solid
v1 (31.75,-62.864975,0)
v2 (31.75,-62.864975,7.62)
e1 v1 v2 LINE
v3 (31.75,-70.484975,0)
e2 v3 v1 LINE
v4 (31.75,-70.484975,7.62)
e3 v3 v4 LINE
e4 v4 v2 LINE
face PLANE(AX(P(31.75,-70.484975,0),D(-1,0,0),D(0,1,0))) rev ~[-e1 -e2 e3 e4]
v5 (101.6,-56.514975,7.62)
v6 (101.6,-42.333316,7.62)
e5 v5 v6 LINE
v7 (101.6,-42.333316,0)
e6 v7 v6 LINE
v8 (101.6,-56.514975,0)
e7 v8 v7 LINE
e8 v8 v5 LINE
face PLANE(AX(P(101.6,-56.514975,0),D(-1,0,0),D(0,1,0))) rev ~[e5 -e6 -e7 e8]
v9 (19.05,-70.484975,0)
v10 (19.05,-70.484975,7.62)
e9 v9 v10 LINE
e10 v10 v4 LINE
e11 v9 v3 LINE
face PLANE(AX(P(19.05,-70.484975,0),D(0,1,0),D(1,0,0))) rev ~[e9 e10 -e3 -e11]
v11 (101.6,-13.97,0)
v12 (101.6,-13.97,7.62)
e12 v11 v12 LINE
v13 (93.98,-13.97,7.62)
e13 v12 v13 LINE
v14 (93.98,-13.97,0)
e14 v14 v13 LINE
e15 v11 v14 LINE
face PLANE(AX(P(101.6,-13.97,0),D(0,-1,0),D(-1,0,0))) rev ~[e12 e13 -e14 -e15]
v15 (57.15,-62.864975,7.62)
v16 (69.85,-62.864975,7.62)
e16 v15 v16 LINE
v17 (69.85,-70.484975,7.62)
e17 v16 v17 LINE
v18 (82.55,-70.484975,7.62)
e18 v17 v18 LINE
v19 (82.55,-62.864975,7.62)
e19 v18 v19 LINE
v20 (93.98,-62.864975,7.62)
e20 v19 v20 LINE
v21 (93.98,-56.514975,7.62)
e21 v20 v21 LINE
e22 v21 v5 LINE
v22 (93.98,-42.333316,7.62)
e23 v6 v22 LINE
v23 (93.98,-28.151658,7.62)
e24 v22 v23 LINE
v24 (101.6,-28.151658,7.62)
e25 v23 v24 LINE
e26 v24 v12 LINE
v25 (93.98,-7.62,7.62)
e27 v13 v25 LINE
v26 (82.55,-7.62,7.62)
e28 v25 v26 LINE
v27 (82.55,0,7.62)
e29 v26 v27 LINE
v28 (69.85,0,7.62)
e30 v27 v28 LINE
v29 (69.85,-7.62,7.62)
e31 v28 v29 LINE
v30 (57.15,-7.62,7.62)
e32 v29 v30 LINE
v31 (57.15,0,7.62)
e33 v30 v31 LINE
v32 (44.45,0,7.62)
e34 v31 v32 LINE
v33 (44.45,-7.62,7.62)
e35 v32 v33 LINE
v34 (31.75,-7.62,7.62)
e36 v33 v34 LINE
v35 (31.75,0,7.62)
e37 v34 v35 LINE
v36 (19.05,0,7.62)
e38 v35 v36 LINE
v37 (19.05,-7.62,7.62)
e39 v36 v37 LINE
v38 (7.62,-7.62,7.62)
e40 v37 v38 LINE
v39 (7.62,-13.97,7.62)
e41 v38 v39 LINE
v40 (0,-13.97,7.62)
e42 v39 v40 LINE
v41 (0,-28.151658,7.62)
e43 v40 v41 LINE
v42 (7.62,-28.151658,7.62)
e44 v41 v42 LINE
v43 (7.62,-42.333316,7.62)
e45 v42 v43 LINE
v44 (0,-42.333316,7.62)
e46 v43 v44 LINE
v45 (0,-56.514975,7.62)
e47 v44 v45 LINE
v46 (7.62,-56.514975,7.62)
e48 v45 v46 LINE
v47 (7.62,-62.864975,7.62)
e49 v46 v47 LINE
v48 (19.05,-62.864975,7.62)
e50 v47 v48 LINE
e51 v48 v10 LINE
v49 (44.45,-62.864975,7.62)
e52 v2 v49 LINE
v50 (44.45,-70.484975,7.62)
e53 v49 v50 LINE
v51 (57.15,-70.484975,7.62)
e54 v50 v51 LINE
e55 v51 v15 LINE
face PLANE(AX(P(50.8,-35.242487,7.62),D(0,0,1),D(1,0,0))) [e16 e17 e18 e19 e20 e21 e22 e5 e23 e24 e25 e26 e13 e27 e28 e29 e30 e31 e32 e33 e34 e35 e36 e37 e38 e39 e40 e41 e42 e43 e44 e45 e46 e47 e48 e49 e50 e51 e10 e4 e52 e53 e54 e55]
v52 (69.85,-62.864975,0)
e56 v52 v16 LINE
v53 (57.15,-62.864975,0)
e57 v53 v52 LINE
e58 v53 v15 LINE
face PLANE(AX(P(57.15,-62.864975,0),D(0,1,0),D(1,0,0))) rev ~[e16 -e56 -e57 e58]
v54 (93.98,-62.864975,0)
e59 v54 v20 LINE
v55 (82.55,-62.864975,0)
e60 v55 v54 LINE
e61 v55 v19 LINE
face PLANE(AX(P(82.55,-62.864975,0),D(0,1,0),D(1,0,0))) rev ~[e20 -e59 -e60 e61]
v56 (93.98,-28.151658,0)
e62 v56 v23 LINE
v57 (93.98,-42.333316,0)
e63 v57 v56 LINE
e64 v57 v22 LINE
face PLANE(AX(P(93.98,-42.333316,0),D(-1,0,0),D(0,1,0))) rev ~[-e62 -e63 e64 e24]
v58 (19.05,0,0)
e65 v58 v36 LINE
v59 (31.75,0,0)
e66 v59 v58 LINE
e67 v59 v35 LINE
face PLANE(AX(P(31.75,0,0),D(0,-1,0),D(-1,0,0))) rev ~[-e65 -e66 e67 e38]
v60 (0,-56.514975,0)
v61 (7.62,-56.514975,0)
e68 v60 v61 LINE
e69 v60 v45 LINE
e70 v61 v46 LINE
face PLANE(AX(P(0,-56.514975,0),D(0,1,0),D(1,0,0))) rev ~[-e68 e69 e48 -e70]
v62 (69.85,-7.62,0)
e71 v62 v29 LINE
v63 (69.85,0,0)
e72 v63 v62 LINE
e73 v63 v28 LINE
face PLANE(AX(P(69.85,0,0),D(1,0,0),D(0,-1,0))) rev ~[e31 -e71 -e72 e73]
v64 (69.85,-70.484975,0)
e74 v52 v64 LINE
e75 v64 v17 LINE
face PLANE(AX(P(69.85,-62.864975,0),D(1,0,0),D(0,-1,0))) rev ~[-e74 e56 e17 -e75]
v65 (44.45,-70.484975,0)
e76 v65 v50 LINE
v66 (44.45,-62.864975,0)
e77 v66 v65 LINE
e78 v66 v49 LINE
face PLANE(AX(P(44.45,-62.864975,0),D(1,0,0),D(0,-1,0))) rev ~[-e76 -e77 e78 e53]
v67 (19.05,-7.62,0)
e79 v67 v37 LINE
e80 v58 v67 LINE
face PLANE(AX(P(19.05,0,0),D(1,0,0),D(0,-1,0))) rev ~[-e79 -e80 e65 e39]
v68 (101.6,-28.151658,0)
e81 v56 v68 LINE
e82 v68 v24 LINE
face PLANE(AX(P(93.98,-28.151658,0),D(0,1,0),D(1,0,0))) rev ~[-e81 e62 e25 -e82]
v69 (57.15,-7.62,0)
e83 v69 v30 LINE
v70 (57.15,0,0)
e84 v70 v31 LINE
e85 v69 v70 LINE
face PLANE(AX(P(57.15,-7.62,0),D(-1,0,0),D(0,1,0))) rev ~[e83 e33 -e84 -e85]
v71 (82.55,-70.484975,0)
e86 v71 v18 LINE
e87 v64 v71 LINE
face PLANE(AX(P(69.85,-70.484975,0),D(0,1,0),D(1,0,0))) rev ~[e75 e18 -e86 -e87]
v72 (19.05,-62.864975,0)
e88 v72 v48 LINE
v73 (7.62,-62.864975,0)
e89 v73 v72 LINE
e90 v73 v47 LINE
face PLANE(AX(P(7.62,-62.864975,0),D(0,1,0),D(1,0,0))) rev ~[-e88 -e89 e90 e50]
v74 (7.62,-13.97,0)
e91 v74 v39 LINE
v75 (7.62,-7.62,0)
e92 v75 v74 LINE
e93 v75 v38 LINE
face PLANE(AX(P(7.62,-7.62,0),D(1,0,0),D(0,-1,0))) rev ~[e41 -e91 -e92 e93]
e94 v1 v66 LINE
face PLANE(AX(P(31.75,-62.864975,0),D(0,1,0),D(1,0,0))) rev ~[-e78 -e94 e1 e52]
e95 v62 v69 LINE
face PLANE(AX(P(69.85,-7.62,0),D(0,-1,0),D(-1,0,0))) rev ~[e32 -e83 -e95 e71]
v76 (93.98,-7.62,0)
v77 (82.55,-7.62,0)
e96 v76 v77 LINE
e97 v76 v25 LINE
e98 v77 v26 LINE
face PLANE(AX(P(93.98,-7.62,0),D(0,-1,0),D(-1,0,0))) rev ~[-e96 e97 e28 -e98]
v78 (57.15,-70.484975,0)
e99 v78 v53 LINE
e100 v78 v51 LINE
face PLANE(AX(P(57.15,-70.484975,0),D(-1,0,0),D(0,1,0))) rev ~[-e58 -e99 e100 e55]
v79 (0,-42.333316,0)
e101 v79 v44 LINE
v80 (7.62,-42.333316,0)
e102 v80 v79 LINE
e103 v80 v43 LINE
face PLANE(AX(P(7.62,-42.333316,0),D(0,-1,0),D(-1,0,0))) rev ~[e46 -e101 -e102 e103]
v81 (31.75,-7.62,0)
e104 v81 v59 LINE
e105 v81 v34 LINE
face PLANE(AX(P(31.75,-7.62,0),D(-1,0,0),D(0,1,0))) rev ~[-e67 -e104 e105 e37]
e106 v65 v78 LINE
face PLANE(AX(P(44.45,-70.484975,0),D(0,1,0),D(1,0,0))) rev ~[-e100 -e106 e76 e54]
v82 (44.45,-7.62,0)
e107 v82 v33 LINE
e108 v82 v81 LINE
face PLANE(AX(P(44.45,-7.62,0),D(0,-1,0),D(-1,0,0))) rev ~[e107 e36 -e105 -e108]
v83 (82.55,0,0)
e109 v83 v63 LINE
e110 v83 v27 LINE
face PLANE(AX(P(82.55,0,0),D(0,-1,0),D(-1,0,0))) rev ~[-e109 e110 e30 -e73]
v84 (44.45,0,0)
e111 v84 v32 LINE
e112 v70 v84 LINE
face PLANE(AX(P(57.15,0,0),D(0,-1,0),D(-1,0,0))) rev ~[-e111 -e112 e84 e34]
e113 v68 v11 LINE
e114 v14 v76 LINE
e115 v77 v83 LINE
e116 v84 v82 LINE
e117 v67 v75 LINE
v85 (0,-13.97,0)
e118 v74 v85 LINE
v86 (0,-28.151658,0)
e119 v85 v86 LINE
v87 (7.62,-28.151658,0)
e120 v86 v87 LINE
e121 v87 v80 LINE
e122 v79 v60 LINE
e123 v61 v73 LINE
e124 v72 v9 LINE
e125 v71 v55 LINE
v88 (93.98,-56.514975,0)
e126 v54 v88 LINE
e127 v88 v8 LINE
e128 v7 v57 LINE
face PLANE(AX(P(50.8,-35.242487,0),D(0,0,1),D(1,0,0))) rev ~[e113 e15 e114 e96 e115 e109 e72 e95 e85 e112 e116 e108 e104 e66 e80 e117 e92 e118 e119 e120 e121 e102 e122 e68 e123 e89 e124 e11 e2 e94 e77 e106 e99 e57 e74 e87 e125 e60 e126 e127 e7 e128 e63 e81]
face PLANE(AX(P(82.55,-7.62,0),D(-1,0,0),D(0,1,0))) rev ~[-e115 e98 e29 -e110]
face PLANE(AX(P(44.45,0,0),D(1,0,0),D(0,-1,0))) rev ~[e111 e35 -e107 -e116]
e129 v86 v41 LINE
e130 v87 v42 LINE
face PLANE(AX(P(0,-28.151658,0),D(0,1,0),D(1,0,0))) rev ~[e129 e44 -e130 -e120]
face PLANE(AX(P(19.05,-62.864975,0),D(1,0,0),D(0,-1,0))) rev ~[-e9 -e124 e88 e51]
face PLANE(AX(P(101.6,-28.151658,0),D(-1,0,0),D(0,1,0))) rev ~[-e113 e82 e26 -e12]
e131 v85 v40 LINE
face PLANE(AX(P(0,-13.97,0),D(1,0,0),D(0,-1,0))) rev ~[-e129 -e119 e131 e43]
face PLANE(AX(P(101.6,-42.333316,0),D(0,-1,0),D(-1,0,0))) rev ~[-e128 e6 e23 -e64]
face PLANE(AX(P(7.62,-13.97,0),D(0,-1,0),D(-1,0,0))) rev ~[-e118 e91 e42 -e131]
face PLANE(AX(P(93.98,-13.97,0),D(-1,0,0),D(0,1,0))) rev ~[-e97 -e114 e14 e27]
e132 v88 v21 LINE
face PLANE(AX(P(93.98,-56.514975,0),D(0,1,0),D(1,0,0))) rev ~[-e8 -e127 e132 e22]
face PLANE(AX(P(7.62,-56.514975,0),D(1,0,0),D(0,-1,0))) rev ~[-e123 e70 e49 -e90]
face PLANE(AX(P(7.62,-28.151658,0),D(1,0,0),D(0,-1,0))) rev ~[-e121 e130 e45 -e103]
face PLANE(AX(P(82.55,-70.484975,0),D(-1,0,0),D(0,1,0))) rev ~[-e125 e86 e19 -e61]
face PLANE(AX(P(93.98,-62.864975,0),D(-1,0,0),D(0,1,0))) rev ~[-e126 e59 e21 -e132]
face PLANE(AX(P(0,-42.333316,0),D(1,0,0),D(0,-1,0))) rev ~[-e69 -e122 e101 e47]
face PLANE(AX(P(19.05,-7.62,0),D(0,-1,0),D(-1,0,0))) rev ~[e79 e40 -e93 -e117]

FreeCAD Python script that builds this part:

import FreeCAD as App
import Part
import Sketcher

V = App.Vector
Q = App.Units.Quantity

doc = App.newDocument("Part")
body = doc.addObject("PartDesign::Body", "Body")

# Sketch on XY plane
sketch1 = doc.addObject("Sketcher::SketchObject", "Sketch")
body.addObject(sketch1)
sketch1.AttachmentSupport = (doc.XY_Plane, [""])
sketch1.MapMode = "FlatFace"
sketch1.addGeometry(Part.LineSegment(V(32, 0, 0), V(19, 0, 0)), False)
sketch1.addGeometry(Part.LineSegment(V(19, 0, 0), V(19, -8, 0)), False)
sketch1.addGeometry(Part.LineSegment(V(19, -8, 0), V(8, -8, 0)), False)
sketch1.addGeometry(Part.LineSegment(V(8, -8, 0), V(8, -14, 0)), False)
sketch1.addGeometry(Part.LineSegment(V(8, -14, 0), V(0, -14, 0)), False)
sketch1.addGeometry(Part.LineSegment(V(0, -14, 0), V(0, -28, 0)), False)
sketch1.addGeometry(Part.LineSegment(V(0, -28, 0), V(8, -28, 0)), False)
sketch1.addGeometry(Part.LineSegment(V(8, -28, 0), V(8, -42, 0)), False)
sketch1.addGeometry(Part.LineSegment(V(8, -42, 0), V(0, -42, 0)), False)
sketch1.addGeometry(Part.LineSegment(V(0, -42, 0), V(0, -57, 0)), False)
sketch1.addGeometry(Part.LineSegment(V(0, -57, 0), V(8, -57, 0)), False)
sketch1.addGeometry(Part.LineSegment(V(8, -57, 0), V(8, -63, 0)), False)
sketch1.addGeometry(Part.LineSegment(V(8, -63, 0), V(19, -63, 0)), False)
sketch1.addGeometry(Part.LineSegment(V(19, -63, 0), V(19, -70, 0)), False)
sketch1.addGeometry(Part.LineSegment(V(19, -70, 0), V(32, -70, 0)), False)
sketch1.addGeometry(Part.LineSegment(V(32, -70, 0), V(32, -63, 0)), False)
sketch1.addGeometry(Part.LineSegment(V(32, -63, 0), V(44, -63, 0)), False)
sketch1.addGeometry(Part.LineSegment(V(44, -63, 0), V(44, -70, 0)), False)
sketch1.addGeometry(Part.LineSegment(V(44, -70, 0), V(57, -70, 0)), False)
sketch1.addGeometry(Part.LineSegment(V(57, -70, 0), V(57, -63, 0)), False)
sketch1.addGeometry(Part.LineSegment(V(57, -63, 0), V(70, -63, 0)), False)
sketch1.addGeometry(Part.LineSegment(V(70, -63, 0), V(70, -70, 0)), False)
sketch1.addGeometry(Part.LineSegment(V(70, -70, 0), V(83, -70, 0)), False)
sketch1.addGeometry(Part.LineSegment(V(83, -70, 0), V(83, -63, 0)), False)
sketch1.addGeometry(Part.LineSegment(V(83, -63, 0), V(94, -63, 0)), False)
sketch1.addGeometry(Part.LineSegment(V(94, -63, 0), V(94, -57, 0)), False)
sketch1.addGeometry(Part.LineSegment(V(94, -57, 0), V(102, -57, 0)), False)
sketch1.addGeometry(Part.LineSegment(V(102, -57, 0), V(102, -42, 0)), False)
sketch1.addGeometry(Part.LineSegment(V(102, -42, 0), V(94, -42, 0)), False)
sketch1.addGeometry(Part.LineSegment(V(94, -42, 0), V(94, -28, 0)), False)
sketch1.addGeometry(Part.LineSegment(V(94, -28, 0), V(102, -28, 0)), False)
sketch1.addGeometry(Part.LineSegment(V(102, -28, 0), V(102, -14, 0)), False)
sketch1.addGeometry(Part.LineSegment(V(102, -14, 0), V(94, -14, 0)), False)
sketch1.addGeometry(Part.LineSegment(V(94, -14, 0), V(94, -8, 0)), False)
sketch1.addGeometry(Part.LineSegment(V(94, -8, 0), V(83, -8, 0)), False)
sketch1.addGeometry(Part.LineSegment(V(83, -8, 0), V(83, 0, 0)), False)
sketch1.addGeometry(Part.LineSegment(V(83, 0, 0), V(70, 0, 0)), False)
sketch1.addGeometry(Part.LineSegment(V(70, 0, 0), V(70, -8, 0)), False)
sketch1.addGeometry(Part.LineSegment(V(70, -8, 0), V(57, -8, 0)), False)
sketch1.addGeometry(Part.LineSegment(V(57, -8, 0), V(57, 0, 0)), False)
sketch1.addGeometry(Part.LineSegment(V(57, 0, 0), V(44, 0, 0)), False)
sketch1.addGeometry(Part.LineSegment(V(44, 0, 0), V(44, -8, 0)), False)
sketch1.addGeometry(Part.LineSegment(V(44, -8, 0), V(32, -8, 0)), False)
sketch1.addGeometry(Part.LineSegment(V(32, -8, 0), V(32, 0, 0)), False)
sketch1.addConstraint(Sketcher.Constraint("Coincident", 0, 2, 1, 1))
sketch1.addConstraint(Sketcher.Constraint("Coincident", 1, 2, 2, 1))
sketch1.addConstraint(Sketcher.Constraint("Coincident", 2, 2, 3, 1))
sketch1.addConstraint(Sketcher.Constraint("Coincident", 3, 2, 4, 1))
sketch1.addConstraint(Sketcher.Constraint("Coincident", 4, 2, 5, 1))
sketch1.addConstraint(Sketcher.Constraint("Coincident", 5, 2, 6, 1))
sketch1.addConstraint(Sketcher.Constraint("Coincident", 6, 2, 7, 1))
sketch1.addConstraint(Sketcher.Constraint("Coincident", 7, 2, 8, 1))
sketch1.addConstraint(Sketcher.Constraint("Coincident", 8, 2, 9, 1))
sketch1.addConstraint(Sketcher.Constraint("Coincident", 9, 2, 10, 1))
sketch1.addConstraint(Sketcher.Constraint("Coincident", 10, 2, 11, 1))
sketch1.addConstraint(Sketcher.Constraint("Coincident", 11, 2, 12, 1))
sketch1.addConstraint(Sketcher.Constraint("Coincident", 12, 2, 13, 1))
sketch1.addConstraint(Sketcher.Constraint("Coincident", 13, 2, 14, 1))
sketch1.addConstraint(Sketcher.Constraint("Coincident", 14, 2, 15, 1))
sketch1.addConstraint(Sketcher.Constraint("Coincident", 15, 2, 16, 1))
sketch1.addConstraint(Sketcher.Constraint("Coincident", 16, 2, 17, 1))
sketch1.addConstraint(Sketcher.Constraint("Coincident", 17, 2, 18, 1))
sketch1.addConstraint(Sketcher.Constraint("Coincident", 18, 2, 19, 1))
sketch1.addConstraint(Sketcher.Constraint("Coincident", 19, 2, 20, 1))
sketch1.addConstraint(Sketcher.Constraint("Coincident", 20, 2, 21, 1))
sketch1.addConstraint(Sketcher.Constraint("Coincident", 21, 2, 22, 1))
sketch1.addConstraint(Sketcher.Constraint("Coincident", 22, 2, 23, 1))
sketch1.addConstraint(Sketcher.Constraint("Coincident", 23, 2, 24, 1))
sketch1.addConstraint(Sketcher.Constraint("Coincident", 24, 2, 25, 1))
sketch1.addConstraint(Sketcher.Constraint("Coincident", 25, 2, 26, 1))
sketch1.addConstraint(Sketcher.Constraint("Coincident", 26, 2, 27, 1))
sketch1.addConstraint(Sketcher.Constraint("Coincident", 27, 2, 28, 1))
sketch1.addConstraint(Sketcher.Constraint("Coincident", 28, 2, 29, 1))
sketch1.addConstraint(Sketcher.Constraint("Coincident", 29, 2, 30, 1))
sketch1.addConstraint(Sketcher.Constraint("Coincident", 30, 2, 31, 1))
sketch1.addConstraint(Sketcher.Constraint("Coincident", 31, 2, 32, 1))
sketch1.addConstraint(Sketcher.Constraint("Coincident", 32, 2, 33, 1))
sketch1.addConstraint(Sketcher.Constraint("Coincident", 33, 2, 34, 1))
sketch1.addConstraint(Sketcher.Constraint("Coincident", 34, 2, 35, 1))
sketch1.addConstraint(Sketcher.Constraint("Coincident", 35, 2, 36, 1))
sketch1.addConstraint(Sketcher.Constraint("Coincident", 36, 2, 37, 1))
sketch1.addConstraint(Sketcher.Constraint("Coincident", 37, 2, 38, 1))
sketch1.addConstraint(Sketcher.Constraint("Coincident", 38, 2, 39, 1))
sketch1.addConstraint(Sketcher.Constraint("Coincident", 39, 2, 40, 1))
sketch1.addConstraint(Sketcher.Constraint("Coincident", 40, 2, 41, 1))
sketch1.addConstraint(Sketcher.Constraint("Coincident", 41, 2, 42, 1))
sketch1.addConstraint(Sketcher.Constraint("Coincident", 42, 2, 43, 1))
sketch1.addConstraint(Sketcher.Constraint("Coincident", 43, 2, 0, 1))
sketch1.addConstraint(Sketcher.Constraint("Horizontal", 0))
sketch1.addConstraint(Sketcher.Constraint("Vertical", 1))
sketch1.addConstraint(Sketcher.Constraint("Horizontal", 2))
sketch1.addConstraint(Sketcher.Constraint("Vertical", 3))
sketch1.addConstraint(Sketcher.Constraint("Horizontal", 4))
sketch1.addConstraint(Sketcher.Constraint("Vertical", 5))
sketch1.addConstraint(Sketcher.Constraint("Horizontal", 6))
sketch1.addConstraint(Sketcher.Constraint("Vertical", 7))
sketch1.addConstraint(Sketcher.Constraint("Horizontal", 8))
sketch1.addConstraint(Sketcher.Constraint("Vertical", 9))
sketch1.addConstraint(Sketcher.Constraint("Horizontal", 10))
sketch1.addConstraint(Sketcher.Constraint("Vertical", 11))
sketch1.addConstraint(Sketcher.Constraint("Horizontal", 12))
sketch1.addConstraint(Sketcher.Constraint("Vertical", 13))
sketch1.addConstraint(Sketcher.Constraint("Horizontal", 14))
sketch1.addConstraint(Sketcher.Constraint("Vertical", 15))
sketch1.addConstraint(Sketcher.Constraint("Horizontal", 16))
sketch1.addConstraint(Sketcher.Constraint("Vertical", 17))
sketch1.addConstraint(Sketcher.Constraint("Horizontal", 18))
sketch1.addConstraint(Sketcher.Constraint("Vertical", 19))
sketch1.addConstraint(Sketcher.Constraint("Horizontal", 20))
sketch1.addConstraint(Sketcher.Constraint("Vertical", 21))
sketch1.addConstraint(Sketcher.Constraint("Horizontal", 22))
sketch1.addConstraint(Sketcher.Constraint("Vertical", 23))
sketch1.addConstraint(Sketcher.Constraint("Horizontal", 24))
sketch1.addConstraint(Sketcher.Constraint("Vertical", 25))
sketch1.addConstraint(Sketcher.Constraint("Horizontal", 26))
sketch1.addConstraint(Sketcher.Constraint("Vertical", 27))
sketch1.addConstraint(Sketcher.Constraint("Horizontal", 28))
sketch1.addConstraint(Sketcher.Constraint("Vertical", 29))
sketch1.addConstraint(Sketcher.Constraint("Horizontal", 30))
sketch1.addConstraint(Sketcher.Constraint("Vertical", 31))
sketch1.addConstraint(Sketcher.Constraint("Horizontal", 32))
sketch1.addConstraint(Sketcher.Constraint("Vertical", 33))
sketch1.addConstraint(Sketcher.Constraint("Horizontal", 34))
sketch1.addConstraint(Sketcher.Constraint("Vertical", 35))
sketch1.addConstraint(Sketcher.Constraint("Horizontal", 36))
sketch1.addConstraint(Sketcher.Constraint("Vertical", 37))
sketch1.addConstraint(Sketcher.Constraint("Horizontal", 38))
sketch1.addConstraint(Sketcher.Constraint("Vertical", 39))
sketch1.addConstraint(Sketcher.Constraint("Horizontal", 40))
sketch1.addConstraint(Sketcher.Constraint("Vertical", 41))
sketch1.addConstraint(Sketcher.Constraint("Horizontal", 42))
sketch1.addConstraint(Sketcher.Constraint("Vertical", 43))
sketch1.addConstraint(Sketcher.Constraint("PointOnObject", 0, 2, -1))
sketch1.addConstraint(Sketcher.Constraint("PointOnObject", 4, 2, -2))
sketch1.addConstraint(Sketcher.Constraint("PointOnObject", 8, 2, -2))
sketch1.addConstraint(Sketcher.Constraint("PointOnObject", 35, 2, -1))
sketch1.addConstraint(Sketcher.Constraint("PointOnObject", 39, 2, -1))
sketch1.addConstraint(Sketcher.Constraint("Horizontal", 12, 2, 15, 2))
sketch1.addConstraint(Sketcher.Constraint("Horizontal", 14, 2, 17, 2))
sketch1.addConstraint(Sketcher.Constraint("Horizontal", 16, 2, 19, 2))
sketch1.addConstraint(Sketcher.Constraint("Horizontal", 18, 2, 21, 2))
sketch1.addConstraint(Sketcher.Constraint("Horizontal", 20, 2, 23, 2))
sketch1.addConstraint(Sketcher.Constraint("Horizontal", 10, 2, 25, 2))
sketch1.addConstraint(Sketcher.Constraint("Horizontal", 8, 2, 27, 2))
sketch1.addConstraint(Sketcher.Constraint("Horizontal", 6, 2, 29, 2))
sketch1.addConstraint(Sketcher.Constraint("Horizontal", 4, 2, 31, 2))
sketch1.addConstraint(Sketcher.Constraint("Horizontal", 2, 2, 33, 2))
sketch1.addConstraint(Sketcher.Constraint("Horizontal", 34, 2, 37, 2))
sketch1.addConstraint(Sketcher.Constraint("Horizontal", 38, 2, 41, 2))
sketch1.addConstraint(Sketcher.Constraint("Vertical", 3, 2, 6, 2))
sketch1.addConstraint(Sketcher.Constraint("Vertical", 7, 2, 10, 2))
sketch1.addConstraint(Sketcher.Constraint("Vertical", 1, 2, 12, 2))
sketch1.addConstraint(Sketcher.Constraint("Vertical", 25, 2, 28, 2))
sketch1.addConstraint(Sketcher.Constraint("Vertical", 27, 2, 30, 2))
sketch1.addConstraint(Sketcher.Constraint("Vertical", 29, 2, 32, 2))
sketch1.addConstraint(Sketcher.Constraint("Vertical", 23, 2, 34, 2))
sketch1.addConstraint(Sketcher.Constraint("Vertical", 21, 2, 36, 2))
sketch1.addConstraint(Sketcher.Constraint("Vertical", 19, 2, 38, 2))
sketch1.addConstraint(Sketcher.Constraint("Vertical", 17, 2, 40, 2))
sketch1.addConstraint(Sketcher.Constraint("Vertical", 15, 2, 42, 2))
sketch1.addConstraint(Sketcher.Constraint("Equal", 14, 16))
sketch1.addConstraint(Sketcher.Constraint("Equal", 16, 18))
sketch1.addConstraint(Sketcher.Constraint("Equal", 18, 20))
sketch1.addConstraint(Sketcher.Constraint("Equal", 20, 22))
sketch1.addConstraint(Sketcher.Constraint("Equal", 12, 24))
sketch1.addConstraint(Sketcher.Constraint("Equal", 10, 26))
sketch1.addConstraint(Sketcher.Constraint("Equal", 32, 1))
sketch1.addConstraint(Sketcher.Constraint("Equal", 5, 7))
sketch1.addConstraint(Sketcher.Constraint("Equal", 7, 9))
sketch1.addConstraint(Sketcher.Constraint("Equal", 3, 11))
sketch1.addConstraint(Sketcher.Constraint("Equal", 1, 13))
sketch1.addConstraint(Sketcher.Constraint("DistanceX", 0, 2, 0, 1, Q("0.5 in")))
sketch1.addConstraint(Sketcher.Constraint("DistanceX", 4, 2, 4, 1, Q("0.3 in")))
sketch1.addConstraint(Sketcher.Constraint("DistanceX", -1, 1, 26, 2, Q("4 in")))
sketch1.addConstraint(Sketcher.Constraint("DistanceY", 3, 2, 3, 1, Q("0.25 in")))
sketch1.addConstraint(Sketcher.Constraint("DistanceY", 7, 2, 7, 1, 14.181658))
pad1 = doc.addObject("PartDesign::Pad", "Pad")
body.addObject(pad1)
pad1.Profile = sketch1
pad1.Length = Q("0.3 in")

doc.recompute()
